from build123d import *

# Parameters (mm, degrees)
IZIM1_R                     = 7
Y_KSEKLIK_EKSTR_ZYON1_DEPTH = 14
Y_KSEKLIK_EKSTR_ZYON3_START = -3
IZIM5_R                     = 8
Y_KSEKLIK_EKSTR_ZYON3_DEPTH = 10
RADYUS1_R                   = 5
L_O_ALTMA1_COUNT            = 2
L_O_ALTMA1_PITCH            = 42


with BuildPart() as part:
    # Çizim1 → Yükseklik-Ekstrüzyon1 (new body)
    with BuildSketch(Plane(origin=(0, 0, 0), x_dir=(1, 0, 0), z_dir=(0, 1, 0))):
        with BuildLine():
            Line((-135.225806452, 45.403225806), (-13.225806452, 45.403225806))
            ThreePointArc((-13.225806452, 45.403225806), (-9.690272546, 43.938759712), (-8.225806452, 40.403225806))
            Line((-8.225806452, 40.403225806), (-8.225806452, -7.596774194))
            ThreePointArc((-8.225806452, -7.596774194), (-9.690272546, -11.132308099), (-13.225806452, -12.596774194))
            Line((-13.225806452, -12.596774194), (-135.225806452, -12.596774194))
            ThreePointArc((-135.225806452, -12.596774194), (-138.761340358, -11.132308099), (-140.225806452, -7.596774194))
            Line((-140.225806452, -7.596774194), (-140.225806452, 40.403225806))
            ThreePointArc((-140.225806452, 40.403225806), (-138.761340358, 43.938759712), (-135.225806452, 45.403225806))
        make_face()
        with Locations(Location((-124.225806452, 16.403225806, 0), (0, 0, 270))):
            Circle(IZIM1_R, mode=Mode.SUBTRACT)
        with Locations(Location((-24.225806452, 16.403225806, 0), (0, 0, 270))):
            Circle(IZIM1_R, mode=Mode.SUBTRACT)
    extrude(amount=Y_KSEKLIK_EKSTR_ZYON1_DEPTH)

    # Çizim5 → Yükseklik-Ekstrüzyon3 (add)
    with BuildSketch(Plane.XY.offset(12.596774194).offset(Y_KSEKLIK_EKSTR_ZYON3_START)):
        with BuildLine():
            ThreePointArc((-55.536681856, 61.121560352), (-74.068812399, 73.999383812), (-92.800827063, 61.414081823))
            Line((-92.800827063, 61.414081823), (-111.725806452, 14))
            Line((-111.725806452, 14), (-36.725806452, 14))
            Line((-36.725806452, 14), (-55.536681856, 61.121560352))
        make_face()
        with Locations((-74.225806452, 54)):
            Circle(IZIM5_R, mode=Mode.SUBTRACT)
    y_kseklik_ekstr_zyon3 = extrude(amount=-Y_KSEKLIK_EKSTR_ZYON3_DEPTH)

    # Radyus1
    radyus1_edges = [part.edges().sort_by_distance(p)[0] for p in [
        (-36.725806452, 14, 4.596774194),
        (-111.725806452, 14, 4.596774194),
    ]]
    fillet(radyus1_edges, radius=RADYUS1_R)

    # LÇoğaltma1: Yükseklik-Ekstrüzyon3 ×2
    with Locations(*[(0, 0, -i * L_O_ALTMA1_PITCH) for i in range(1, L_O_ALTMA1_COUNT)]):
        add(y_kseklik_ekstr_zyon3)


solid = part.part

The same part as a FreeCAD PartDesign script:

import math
import FreeCAD as App
import Part
import Sketcher
Q = App.Units.Quantity


def edges_at(feature, points):
    """Names of the edges that pass closest to the given points."""
    edges = feature.Shape.Edges
    near = lambda p: min(range(len(edges)), key=lambda i: edges[i].distToShape(Part.Vertex(*p))[0])
    return sorted({f"Edge{near(p) + 1}" for p in points})

doc = App.newDocument("Part")
body = doc.addObject("PartDesign::Body", "Body")

# Sketch on XZ plane
sketch1 = body.newObject("Sketcher::SketchObject", "Sketch")
sketch1.AttachmentSupport = (doc.getObject("XZ_Plane"), [""])
sketch1.MapMode = "FlatFace"
sketch1.addGeometry([
    Part.LineSegment(App.Vector(-13, -45, 0), App.Vector(-135, -45, 0)),  # 0
    Part.ArcOfCircle(Part.Circle(App.Vector(-135, -40, 0), App.Vector(0, 0, 1), 5), math.radians(180), math.radians(270)),  # 1
    Part.LineSegment(App.Vector(-140, -40, 0), App.Vector(-140, 8, 0)),  # 2
    Part.ArcOfCircle(Part.Circle(App.Vector(-135, 8, 0), App.Vector(0, 0, 1), 5), math.radians(90), math.radians(180)),  # 3
    Part.LineSegment(App.Vector(-135, 13, 0), App.Vector(-13, 13, 0)),  # 4
    Part.ArcOfCircle(Part.Circle(App.Vector(-13, 8, 0), App.Vector(0, 0, 1), 5), math.radians(0), math.radians(90)),  # 5
    Part.LineSegment(App.Vector(-8, 8, 0), App.Vector(-8, -40, 0)),  # 6
    Part.ArcOfCircle(Part.Circle(App.Vector(-13, -40, 0), App.Vector(0, 0, 1), 5), math.radians(-90), math.radians(0)),  # 7
    Part.Circle(App.Vector(-24, -16, 0), App.Vector(0, 0, 1), 7),  # 8
    Part.Circle(App.Vector(-124, -16, 0), App.Vector(0, 0, 1), 7),  # 9
], False)
sketch1.addConstraint([
    Sketcher.Constraint("Tangent", 0, 2, 1, 2),
    Sketcher.Constraint("Tangent", 1, 1, 2, 1),
    Sketcher.Constraint("Tangent", 2, 2, 3, 2),
    Sketcher.Constraint("Tangent", 3, 1, 4, 1),
    Sketcher.Constraint("Tangent", 4, 2, 5, 2),
    Sketcher.Constraint("Tangent", 5, 1, 6, 1),
    Sketcher.Constraint("Tangent", 6, 2, 7, 2),
    Sketcher.Constraint("Tangent", 7, 1, 0, 1),
    Sketcher.Constraint("Horizontal", 0),
    Sketcher.Constraint("Vertical", 2),
    Sketcher.Constraint("Horizontal", 4),
    Sketcher.Constraint("Vertical", 6),
    Sketcher.Constraint("Equal", 1, 3),
    Sketcher.Constraint("Equal", 3, 5),
    Sketcher.Constraint("Equal", 5, 7),
    Sketcher.Constraint("Equal", 8, 9),
    Sketcher.Constraint("Horizontal", 8, 3, 9, 3),
    Sketcher.Constraint("Diameter", 8, Q("14 mm")),
    Sketcher.Constraint("Radius", 1, Q("5 mm")),
    Sketcher.Constraint("DistanceX", 0, 2, 0, 1, Q("122 mm")),
    Sketcher.Constraint("DistanceY", 2, 1, 2, 2, Q("48 mm")),
    Sketcher.Constraint("DistanceX", 8, 3, 5, 3, Q("11 mm")),
    Sketcher.Constraint("DistanceY", 8, 3, 5, 3, Q("24 mm")),
    Sketcher.Constraint("DistanceX", 3, 3, 9, 3, Q("11 mm")),
    Sketcher.Constraint("DistanceX", 1, 3, -1, 1, Q("135.225806 mm")),
    Sketcher.Constraint("DistanceY", 1, 3, -1, 1, Q("40.403226 mm")),
])
pad1 = body.newObject("PartDesign::Pad", "Pad")
pad1.Profile = sketch1
pad1.Length = 14
pad1.Reversed = True

# Sketch on XY plane
sketch2 = body.newObject("Sketcher::SketchObject", "Sketch001")
sketch2.AttachmentSupport = (doc.getObject("XY_Plane"), [""])
sketch2.MapMode = "FlatFace"
sketch2.AttachmentOffset = App.Placement(App.Vector(0, 0, 9.596774), App.Rotation())
sketch2.addGeometry([
    Part.ArcOfCircle(Part.Circle(App.Vector(-74, 54, 0), App.Vector(0, 0, 1), 20), math.radians(21), math.radians(158)),  # 0
    Part.LineSegment(App.Vector(-93, 61, 0), App.Vector(-112, 14, 0)),  # 1
    Part.LineSegment(App.Vector(-112, 14, 0), App.Vector(-37, 14, 0)),  # 2
    Part.LineSegment(App.Vector(-37, 14, 0), App.Vector(-56, 61, 0)),  # 3
    Part.Circle(App.Vector(-74, 54, 0), App.Vector(0, 0, 1), 8),  # 4
], False)
sketch2.addConstraint([
    Sketcher.Constraint("Tangent", 0, 2, 1, 1),
    Sketcher.Constraint("Coincident", 1, 2, 2, 1),
    Sketcher.Constraint("Coincident", 2, 2, 3, 1),
    Sketcher.Constraint("Coincident", 3, 2, 0, 1),
    Sketcher.Constraint("Horizontal", 2),
    Sketcher.Constraint("Coincident", 4, 3, 0, 3),
    Sketcher.Constraint("Diameter", 4, Q("16 mm")),
    Sketcher.Constraint("Radius", 0, Q("20 mm")),
    Sketcher.Constraint("DistanceX", 2, 1, 2, 2, Q("75 mm")),
    Sketcher.Constraint("DistanceY", -1, 1, 0, 3, Q("54 mm")),
    Sketcher.Constraint("DistanceY", -1, 1, 1, 2, Q("14 mm")),
    Sketcher.Constraint("DistanceX", 1, 2, 0, 3, Q("37.5 mm")),
    Sketcher.Constraint("DistanceX", 3, 2, -1, 1, Q("55.536682 mm")),
    Sketcher.Constraint("DistanceY", -1, 1, 3, 2, Q("61.12156 mm")),
])
pad2 = body.newObject("PartDesign::Pad", "Pad001")
pad2.Profile = sketch2
pad2.Length = 10
pad2.Reversed = True
doc.recompute()

fillet = body.newObject("PartDesign::Fillet", "Fillet")
fillet.Base = (pad2, edges_at(pad2, [(-36.726, 14, 4.597), (-111.726, 14, 4.597)]))
fillet.Radius = 5
doc.recompute()

linearpattern = body.newObject("PartDesign::LinearPattern", "LinearPattern")
linearpattern.Originals = [pad2]
linearpattern.Direction = (doc.getObject("Z_Axis"), [""])
linearpattern.Mode = "offset"
linearpattern.Offset = 42
linearpattern.Occurrences = 2
linearpattern.Reversed = True
body.Tip = linearpattern

doc.recompute()
